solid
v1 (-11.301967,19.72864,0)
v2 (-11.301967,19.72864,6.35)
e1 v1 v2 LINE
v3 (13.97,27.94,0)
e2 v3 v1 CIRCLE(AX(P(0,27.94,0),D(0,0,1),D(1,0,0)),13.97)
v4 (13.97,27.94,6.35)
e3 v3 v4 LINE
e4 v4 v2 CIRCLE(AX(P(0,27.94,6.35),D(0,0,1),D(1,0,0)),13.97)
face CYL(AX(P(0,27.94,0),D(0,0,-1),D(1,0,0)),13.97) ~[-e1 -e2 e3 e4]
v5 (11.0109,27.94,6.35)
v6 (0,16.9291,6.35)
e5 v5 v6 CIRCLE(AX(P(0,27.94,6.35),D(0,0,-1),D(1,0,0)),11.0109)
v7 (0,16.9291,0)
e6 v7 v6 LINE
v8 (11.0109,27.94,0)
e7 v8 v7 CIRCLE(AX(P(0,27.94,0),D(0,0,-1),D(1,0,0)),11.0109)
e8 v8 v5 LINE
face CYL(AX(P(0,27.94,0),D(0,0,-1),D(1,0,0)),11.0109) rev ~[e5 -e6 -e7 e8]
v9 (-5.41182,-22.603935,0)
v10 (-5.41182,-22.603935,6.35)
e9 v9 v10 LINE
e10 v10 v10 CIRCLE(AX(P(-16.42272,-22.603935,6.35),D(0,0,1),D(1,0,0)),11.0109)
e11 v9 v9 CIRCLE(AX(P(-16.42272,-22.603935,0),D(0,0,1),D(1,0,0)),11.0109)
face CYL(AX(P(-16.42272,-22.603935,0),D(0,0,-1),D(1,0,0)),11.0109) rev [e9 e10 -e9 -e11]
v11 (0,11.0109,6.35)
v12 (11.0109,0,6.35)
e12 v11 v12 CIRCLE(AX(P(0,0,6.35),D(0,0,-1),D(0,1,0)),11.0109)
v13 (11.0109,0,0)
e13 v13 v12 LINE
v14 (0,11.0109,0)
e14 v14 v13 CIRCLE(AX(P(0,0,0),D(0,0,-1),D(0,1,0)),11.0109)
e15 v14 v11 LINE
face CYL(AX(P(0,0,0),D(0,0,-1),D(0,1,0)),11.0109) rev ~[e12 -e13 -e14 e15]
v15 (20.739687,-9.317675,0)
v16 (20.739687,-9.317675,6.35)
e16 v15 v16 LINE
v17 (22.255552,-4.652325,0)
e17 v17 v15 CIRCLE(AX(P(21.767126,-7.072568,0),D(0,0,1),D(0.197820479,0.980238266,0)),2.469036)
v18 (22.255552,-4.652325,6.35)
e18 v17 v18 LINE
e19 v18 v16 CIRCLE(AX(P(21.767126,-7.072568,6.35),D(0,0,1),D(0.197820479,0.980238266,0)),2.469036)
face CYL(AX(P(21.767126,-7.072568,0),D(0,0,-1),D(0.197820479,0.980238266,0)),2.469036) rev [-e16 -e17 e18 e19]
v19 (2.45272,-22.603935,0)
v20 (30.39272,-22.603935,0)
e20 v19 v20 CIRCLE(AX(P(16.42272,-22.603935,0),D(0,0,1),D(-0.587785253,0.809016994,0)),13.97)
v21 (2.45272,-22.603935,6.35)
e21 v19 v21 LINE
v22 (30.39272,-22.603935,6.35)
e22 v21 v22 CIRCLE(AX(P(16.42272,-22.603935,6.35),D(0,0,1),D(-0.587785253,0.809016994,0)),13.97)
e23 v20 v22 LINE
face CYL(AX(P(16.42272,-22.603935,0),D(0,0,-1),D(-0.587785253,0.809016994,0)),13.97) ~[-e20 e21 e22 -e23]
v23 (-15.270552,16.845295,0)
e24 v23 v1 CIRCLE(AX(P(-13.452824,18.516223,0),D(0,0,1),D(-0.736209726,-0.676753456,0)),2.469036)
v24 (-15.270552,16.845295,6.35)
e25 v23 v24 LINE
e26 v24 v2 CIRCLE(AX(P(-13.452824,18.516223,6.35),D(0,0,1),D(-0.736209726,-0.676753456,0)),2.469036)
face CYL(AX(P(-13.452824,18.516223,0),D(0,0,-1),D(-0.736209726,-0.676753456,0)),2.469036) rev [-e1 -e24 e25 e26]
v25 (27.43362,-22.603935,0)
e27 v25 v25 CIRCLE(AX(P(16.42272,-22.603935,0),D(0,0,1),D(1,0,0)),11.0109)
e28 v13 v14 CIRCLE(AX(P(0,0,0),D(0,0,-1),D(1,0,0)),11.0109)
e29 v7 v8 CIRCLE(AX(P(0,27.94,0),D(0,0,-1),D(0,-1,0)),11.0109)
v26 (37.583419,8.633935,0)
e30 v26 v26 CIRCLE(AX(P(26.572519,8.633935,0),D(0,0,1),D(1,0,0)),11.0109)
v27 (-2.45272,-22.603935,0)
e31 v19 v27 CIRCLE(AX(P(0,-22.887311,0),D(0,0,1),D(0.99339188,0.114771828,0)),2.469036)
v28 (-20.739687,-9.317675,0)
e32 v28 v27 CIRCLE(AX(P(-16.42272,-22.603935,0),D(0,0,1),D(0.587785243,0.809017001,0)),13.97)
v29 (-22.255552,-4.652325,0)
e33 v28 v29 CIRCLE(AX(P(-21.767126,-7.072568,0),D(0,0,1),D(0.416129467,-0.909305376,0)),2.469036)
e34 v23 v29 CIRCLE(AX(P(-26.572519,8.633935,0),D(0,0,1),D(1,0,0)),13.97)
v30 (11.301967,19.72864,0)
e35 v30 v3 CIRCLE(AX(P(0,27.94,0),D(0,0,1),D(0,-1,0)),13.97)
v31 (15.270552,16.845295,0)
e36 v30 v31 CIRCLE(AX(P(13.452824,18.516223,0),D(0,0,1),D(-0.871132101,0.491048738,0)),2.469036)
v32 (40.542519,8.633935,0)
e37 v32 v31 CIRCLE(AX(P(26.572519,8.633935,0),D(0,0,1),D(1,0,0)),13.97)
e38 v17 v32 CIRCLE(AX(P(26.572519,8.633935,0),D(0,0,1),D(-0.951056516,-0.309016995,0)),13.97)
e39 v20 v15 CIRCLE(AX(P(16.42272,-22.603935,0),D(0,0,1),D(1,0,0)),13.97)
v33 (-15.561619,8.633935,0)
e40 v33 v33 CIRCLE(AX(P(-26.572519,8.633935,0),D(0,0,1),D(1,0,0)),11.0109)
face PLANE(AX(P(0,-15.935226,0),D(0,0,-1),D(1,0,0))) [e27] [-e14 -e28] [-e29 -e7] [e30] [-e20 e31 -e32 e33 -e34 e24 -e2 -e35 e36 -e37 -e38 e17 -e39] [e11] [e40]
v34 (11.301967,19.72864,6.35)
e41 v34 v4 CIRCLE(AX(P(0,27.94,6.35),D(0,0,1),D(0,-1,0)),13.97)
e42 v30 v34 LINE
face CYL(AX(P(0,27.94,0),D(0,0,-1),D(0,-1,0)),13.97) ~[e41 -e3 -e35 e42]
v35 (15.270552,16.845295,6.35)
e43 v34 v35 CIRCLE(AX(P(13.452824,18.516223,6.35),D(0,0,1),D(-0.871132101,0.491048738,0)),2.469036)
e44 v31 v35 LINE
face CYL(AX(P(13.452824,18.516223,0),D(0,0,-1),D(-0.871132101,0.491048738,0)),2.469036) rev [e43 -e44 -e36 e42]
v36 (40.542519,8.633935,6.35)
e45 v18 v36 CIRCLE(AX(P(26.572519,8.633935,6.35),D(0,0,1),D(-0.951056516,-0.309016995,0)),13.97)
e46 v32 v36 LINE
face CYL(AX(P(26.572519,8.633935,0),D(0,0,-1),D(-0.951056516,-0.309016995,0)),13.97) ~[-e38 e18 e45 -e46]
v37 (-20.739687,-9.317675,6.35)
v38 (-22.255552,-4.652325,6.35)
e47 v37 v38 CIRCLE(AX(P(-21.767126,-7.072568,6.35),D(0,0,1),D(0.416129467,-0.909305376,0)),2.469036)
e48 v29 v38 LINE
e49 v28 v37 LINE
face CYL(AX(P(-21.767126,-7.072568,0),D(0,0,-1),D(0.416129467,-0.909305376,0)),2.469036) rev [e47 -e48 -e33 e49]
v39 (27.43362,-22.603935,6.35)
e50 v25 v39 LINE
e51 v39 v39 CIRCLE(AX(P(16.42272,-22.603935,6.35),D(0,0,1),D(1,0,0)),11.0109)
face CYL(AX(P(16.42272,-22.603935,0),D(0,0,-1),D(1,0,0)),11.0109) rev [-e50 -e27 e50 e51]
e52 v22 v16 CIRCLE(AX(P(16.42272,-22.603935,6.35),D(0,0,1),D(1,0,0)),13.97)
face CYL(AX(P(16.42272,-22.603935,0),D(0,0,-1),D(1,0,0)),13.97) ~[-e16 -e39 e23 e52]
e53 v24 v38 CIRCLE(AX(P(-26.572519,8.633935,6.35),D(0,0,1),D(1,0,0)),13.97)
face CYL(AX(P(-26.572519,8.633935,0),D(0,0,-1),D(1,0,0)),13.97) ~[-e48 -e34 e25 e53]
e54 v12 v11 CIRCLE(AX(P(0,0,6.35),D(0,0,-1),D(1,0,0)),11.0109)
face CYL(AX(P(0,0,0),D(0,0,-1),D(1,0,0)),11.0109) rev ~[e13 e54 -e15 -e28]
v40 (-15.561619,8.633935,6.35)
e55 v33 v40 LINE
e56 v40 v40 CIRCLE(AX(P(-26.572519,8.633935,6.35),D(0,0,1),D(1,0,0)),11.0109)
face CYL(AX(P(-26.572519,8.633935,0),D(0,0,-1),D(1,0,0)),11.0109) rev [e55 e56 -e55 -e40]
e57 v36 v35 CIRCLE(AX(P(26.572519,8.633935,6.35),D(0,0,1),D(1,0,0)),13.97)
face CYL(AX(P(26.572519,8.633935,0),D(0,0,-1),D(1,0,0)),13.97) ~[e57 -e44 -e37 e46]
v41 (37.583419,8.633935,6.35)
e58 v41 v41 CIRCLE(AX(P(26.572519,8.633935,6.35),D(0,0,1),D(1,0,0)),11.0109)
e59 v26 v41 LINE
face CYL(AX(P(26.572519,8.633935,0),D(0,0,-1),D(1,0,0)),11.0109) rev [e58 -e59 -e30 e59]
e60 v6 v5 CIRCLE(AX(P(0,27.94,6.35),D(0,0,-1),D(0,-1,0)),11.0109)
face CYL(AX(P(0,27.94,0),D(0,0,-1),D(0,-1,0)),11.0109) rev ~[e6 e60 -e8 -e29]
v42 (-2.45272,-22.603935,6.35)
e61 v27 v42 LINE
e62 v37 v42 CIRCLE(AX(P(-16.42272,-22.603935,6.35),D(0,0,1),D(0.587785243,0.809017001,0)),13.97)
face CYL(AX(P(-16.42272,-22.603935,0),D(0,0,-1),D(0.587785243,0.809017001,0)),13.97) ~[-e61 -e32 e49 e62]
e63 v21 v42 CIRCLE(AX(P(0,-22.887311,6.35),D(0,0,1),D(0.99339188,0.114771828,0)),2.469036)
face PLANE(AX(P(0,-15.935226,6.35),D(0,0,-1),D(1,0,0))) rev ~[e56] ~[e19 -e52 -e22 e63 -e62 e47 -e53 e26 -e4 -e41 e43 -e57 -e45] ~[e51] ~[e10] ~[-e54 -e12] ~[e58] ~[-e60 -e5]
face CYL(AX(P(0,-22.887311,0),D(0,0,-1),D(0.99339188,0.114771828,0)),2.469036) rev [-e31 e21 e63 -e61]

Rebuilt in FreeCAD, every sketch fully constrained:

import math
import FreeCAD as App
import Part
import Sketcher
Q = App.Units.Quantity

doc = App.newDocument("Part")
body = doc.addObject("PartDesign::Body", "Body")

sketch1 = body.newObject("Sketcher::SketchObject", "Sketch")
sketch1.AttachmentSupport = (doc.getObject("XY_Plane"), [""])
sketch1.MapMode = "FlatFace"
sketch1.addGeometry([
    Part.ArcOfCircle(Part.Circle(App.Vector(-26.6, 8.6, 0), App.Vector(0, 0, 1), 14), math.radians(0), math.radians(342)),
    Part.ArcOfCircle(Part.Circle(App.Vector(-26.6, 8.6, 0), App.Vector(0, 0, 1), 14), math.radians(-18), math.radians(0)),
    Part.Circle(App.Vector(-26.6, 8.6, 0), App.Vector(0, 0, 1), 11),
], False)
sketch1.addConstraint([
    Sketcher.Constraint("Tangent", 0, 1, 1, 2),
    Sketcher.Constraint("Coincident", 1, 1, 0, 2),
    Sketcher.Constraint("Coincident", 2, 3, 0, 3),
    Sketcher.Constraint("Horizontal", 2, 3, 0, 1),
    Sketcher.Constraint("Radius", 0, Q("0.55 in")),
    Sketcher.Constraint("Diameter", 2, Q("0.867 in")),
    Sketcher.Constraint("DistanceX", 0, 3, -1, 1, Q("26.572519 mm")),
    Sketcher.Constraint("DistanceX", 1, 1, -1, 1, Q("13.28626 mm")),
    Sketcher.Constraint("DistanceY", -1, 1, 0, 3, Q("8.633935 mm")),
])
pad1 = body.newObject("PartDesign::Pad", "Pad")
pad1.Profile = sketch1
pad1.Length = Q("0.25 in")
body2 = doc.addObject("PartDesign::Body", "Body001")

sketch2 = body2.newObject("Sketcher::SketchObject", "Sketch001")
sketch2.AttachmentSupport = (doc.getObject("XY_Plane001"), [""])
sketch2.MapMode = "FlatFace"
sketch2.addGeometry([
    Part.ArcOfCircle(Part.Circle(App.Vector(0, 28, 0), App.Vector(0, 0, 1), 14), math.radians(0), math.radians(270)),
    Part.ArcOfCircle(Part.Circle(App.Vector(0, 28, 0), App.Vector(0, 0, 1), 14), math.radians(-90), math.radians(0)),
    Part.ArcOfCircle(Part.Circle(App.Vector(0, 28, 0), App.Vector(0, 0, 1), 11), math.radians(0), math.radians(270)),
    Part.ArcOfCircle(Part.Circle(App.Vector(0, 28, 0), App.Vector(0, 0, 1), 11), math.radians(-90), math.radians(0)),
], False)
sketch2.addConstraint([
    Sketcher.Constraint("Tangent", 0, 1, 1, 2),
    Sketcher.Constraint("Coincident", 1, 1, 0, 2),
    Sketcher.Constraint("Tangent", 2, 1, 3, 2),
    Sketcher.Constraint("Coincident", 3, 1, 2, 2),
    Sketcher.Constraint("Coincident", 2, 3, 0, 3),
    Sketcher.Constraint("PointOnObject", 0, 3, -2),
    Sketcher.Constraint("PointOnObject", 1, 1, -2),
    Sketcher.Constraint("PointOnObject", 3, 1, -2),
    Sketcher.Constraint("Horizontal", 3, 3, 0, 1),
    Sketcher.Constraint("Horizontal", 0, 1, 2, 1),
    Sketcher.Constraint("Radius", 0, Q("0.55 in")),
    Sketcher.Constraint("DistanceY", -1, 1, 0, 3, Q("1.1 in")),
    Sketcher.Constraint("Radius", 2, Q("0.4335 in")),
])
pad2 = body2.newObject("PartDesign::Pad", "Pad001")
pad2.Profile = sketch2
pad2.Length = Q("0.25 in")
body3 = doc.addObject("PartDesign::Body", "Body002")

sketch3 = body3.newObject("Sketcher::SketchObject", "Sketch002")
sketch3.AttachmentSupport = (doc.getObject("XY_Plane002"), [""])
sketch3.MapMode = "FlatFace"
sketch3.addGeometry([
    Part.ArcOfCircle(Part.Circle(App.Vector(27, 9, 0), App.Vector(0, 0, 1), 14), math.radians(0), math.radians(198)),
    Part.ArcOfCircle(Part.Circle(App.Vector(27, 9, 0), App.Vector(0, 0, 1), 14), math.radians(-162), math.radians(0)),
    Part.Circle(App.Vector(27, 9, 0), App.Vector(0, 0, 1), 11),
], False)
sketch3.addConstraint([
    Sketcher.Constraint("Tangent", 0, 1, 1, 2),
    Sketcher.Constraint("Coincident", 1, 1, 0, 2),
    Sketcher.Constraint("Coincident", 2, 3, 0, 3),
    Sketcher.Constraint("Horizontal", 2, 3, 0, 1),
    Sketcher.Constraint("Radius", 0, Q("0.55 in")),
    Sketcher.Constraint("Diameter", 2, Q("0.867 in")),
    Sketcher.Constraint("DistanceX", -1, 1, 0, 3, Q("26.572519 mm")),
    Sketcher.Constraint("DistanceX", -1, 1, 1, 1, Q("13.28626 mm")),
    Sketcher.Constraint("DistanceY", -1, 1, 0, 3, Q("8.633935 mm")),
])
pad3 = body3.newObject("PartDesign::Pad", "Pad002")
pad3.Profile = sketch3
pad3.Length = Q("0.25 in")
body4 = doc.addObject("PartDesign::Body", "Body003")

sketch4 = body4.newObject("Sketcher::SketchObject", "Sketch003")
sketch4.AttachmentSupport = (doc.getObject("XY_Plane003"), [""])
sketch4.MapMode = "FlatFace"
sketch4.addGeometry([
    Part.ArcOfCircle(Part.Circle(App.Vector(16, -23, 0), App.Vector(0, 0, 1), 14), math.radians(0), math.radians(126)),
    Part.ArcOfCircle(Part.Circle(App.Vector(16, -23, 0), App.Vector(0, 0, 1), 14), math.radians(126), math.radians(360)),
    Part.Circle(App.Vector(16, -23, 0), App.Vector(0, 0, 1), 11),
], False)
sketch4.addConstraint([
    Sketcher.Constraint("Tangent", 0, 1, 1, 2),
    Sketcher.Constraint("Coincident", 1, 1, 0, 2),
    Sketcher.Constraint("Coincident", 2, 3, 0, 3),
    Sketcher.Constraint("Horizontal", 2, 3, 0, 1),
    Sketcher.Constraint("Radius", 0, Q("0.55 in")),
    Sketcher.Constraint("Diameter", 2, Q("0.867 in")),
    Sketcher.Constraint("DistanceX", -1, 1, 0, 3, Q("16.42272 mm")),
    Sketcher.Constraint("DistanceX", -1, 1, 1, 1, Q("8.21136 mm")),
    Sketcher.Constraint("DistanceY", 0, 3, -1, 1, Q("22.603935 mm")),
])
pad4 = body4.newObject("PartDesign::Pad", "Pad003")
pad4.Profile = sketch4
pad4.Length = Q("0.25 in")
body5 = doc.addObject("PartDesign::Body", "Body004")

sketch5 = body5.newObject("Sketcher::SketchObject", "Sketch004")
sketch5.AttachmentSupport = (doc.getObject("XY_Plane004"), [""])
sketch5.MapMode = "FlatFace"
sketch5.addGeometry([
    Part.ArcOfCircle(Part.Circle(App.Vector(-16, -23, 0), App.Vector(0, 0, 1), 14), math.radians(0), math.radians(54)),
    Part.ArcOfCircle(Part.Circle(App.Vector(-16, -23, 0), App.Vector(0, 0, 1), 14), math.radians(54), math.radians(360)),
    Part.Circle(App.Vector(-16, -23, 0), App.Vector(0, 0, 1), 11),
], False)
sketch5.addConstraint([
    Sketcher.Constraint("Tangent", 0, 1, 1, 2),
    Sketcher.Constraint("Coincident", 1, 1, 0, 2),
    Sketcher.Constraint("Coincident", 2, 3, 0, 3),
    Sketcher.Constraint("Horizontal", 2, 3, 0, 1),
    Sketcher.Constraint("Radius", 0, Q("0.55 in")),
    Sketcher.Constraint("Diameter", 2, Q("0.867 in")),
    Sketcher.Constraint("DistanceX", 0, 3, -1, 1, Q("16.42272 mm")),
    Sketcher.Constraint("DistanceX", 1, 1, -1, 1, Q("8.21136 mm")),
    Sketcher.Constraint("DistanceY", 0, 3, -1, 1, Q("22.603935 mm")),
])
pad5 = body5.newObject("PartDesign::Pad", "Pad004")
pad5.Profile = sketch5
pad5.Length = Q("0.25 in")
body6 = doc.addObject("PartDesign::Body", "Body005")

sketch6 = body6.newObject("Sketcher::SketchObject", "Sketch005")
sketch6.AttachmentSupport = (doc.getObject("XY_Plane005"), [""])
sketch6.MapMode = "FlatFace"
sketch6.addGeometry([
    Part.ArcOfCircle(Part.Circle(App.Vector(0, 0, 0), App.Vector(0, 0, 1), 14), math.radians(18), math.radians(90)),
    Part.ArcOfCircle(Part.Circle(App.Vector(0, 0, 0), App.Vector(0, 0, 1), 14), math.radians(90), math.radians(162)),
    Part.ArcOfCircle(Part.Circle(App.Vector(0, 0, 0), App.Vector(0, 0, 1), 14), math.radians(162), math.radians(234)),
    Part.ArcOfCircle(Part.Circle(App.Vector(0, 0, 0), App.Vector(0, 0, 1), 14), math.radians(-126), math.radians(-54)),
    Part.ArcOfCircle(Part.Circle(App.Vector(0, 0, 0), App.Vector(0, 0, 1), 14), math.radians(-54), math.radians(0)),
    Part.ArcOfCircle(Part.Circle(App.Vector(0, 0, 0), App.Vector(0, 0, 1), 14), math.radians(0), math.radians(18)),
    Part.ArcOfCircle(Part.Circle(App.Vector(0, 0, 0), App.Vector(0, 0, 1), 11), math.radians(90), math.radians(360)),
    Part.ArcOfCircle(Part.Circle(App.Vector(0, 0, 0), App.Vector(0, 0, 1), 11), math.radians(0), math.radians(90)),
], False)
sketch6.addConstraint([
    Sketcher.Constraint("Tangent", 0, 2, 1, 1),
    Sketcher.Constraint("Tangent", 1, 2, 2, 1),
    Sketcher.Constraint("Tangent", 2, 2, 3, 1),
    Sketcher.Constraint("Tangent", 3, 2, 4, 1),
    Sketcher.Constraint("Tangent", 4, 2, 5, 1),
    Sketcher.Constraint("Tangent", 5, 2, 0, 1),
    Sketcher.Constraint("Tangent", 6, 1, 7, 2),
    Sketcher.Constraint("Coincident", 7, 1, 6, 2),
    Sketcher.Constraint("Coincident", 0, 3, -1, 1),
    Sketcher.Constraint("Coincident", 2, 3, -1, 1),
    Sketcher.Constraint("Coincident", 6, 3, -1, 1),
    Sketcher.Constraint("Equal", 2, 3),
    Sketcher.Constraint("PointOnObject", 0, 2, -2),
    Sketcher.Constraint("PointOnObject", 4, 2, -1),
    Sketcher.Constraint("PointOnObject", 6, 1, -2),
    Sketcher.Constraint("PointOnObject", 7, 1, -1),
    Sketcher.Constraint("Horizontal", 2, 2, 3, 2),
    Sketcher.Constraint("Horizontal", 1, 2, 5, 2),
    Sketcher.Constraint("Radius", 0, Q("0.55 in")),
    Sketcher.Constraint("Radius", 6, Q("0.4335 in")),
    Sketcher.Constraint("DistanceX", 1, 2, -1, 1, Q("13.28626 mm")),
    Sketcher.Constraint("DistanceX", 2, 2, -1, 1, Q("8.21136 mm")),
])
pad6 = body6.newObject("PartDesign::Pad", "Pad005")
pad6.Profile = sketch6
pad6.Length = Q("0.25 in")
body.AllowCompound = True
doc.recompute()

boolean = body.newObject("PartDesign::Boolean", "Boolean")
boolean.Type = "Fuse"
boolean.addObjects([body2])
doc.recompute()

boolean2 = body.newObject("PartDesign::Boolean", "Boolean001")
boolean2.Type = "Fuse"
boolean2.addObjects([body3])
doc.recompute()

boolean3 = body.newObject("PartDesign::Boolean", "Boolean002")
boolean3.Type = "Fuse"
boolean3.addObjects([body4])
doc.recompute()

boolean4 = body.newObject("PartDesign::Boolean", "Boolean003")
boolean4.Type = "Fuse"
boolean4.addObjects([body5])
doc.recompute()

boolean5 = body.newObject("PartDesign::Boolean", "Boolean004")
boolean5.Type = "Fuse"
boolean5.addObjects([body6])

sketch7 = body.newObject("Sketcher::SketchObject", "Sketch006")
sketch7.AttachmentSupport = (doc.getObject("XY_Plane"), [""])
sketch7.MapMode = "FlatFace"
sketch7.addGeometry([
    Part.ArcOfCircle(Part.Circle(App.Vector(0, -22.9, 0), App.Vector(0, 0, 1), 2.5), math.radians(7), math.radians(173)),
    Part.ArcOfCircle(Part.Circle(App.Vector(-16.4, -22.6, 0), App.Vector(0, 0, 1), 14), math.radians(0), math.radians(54)),
    Part.ArcOfCircle(Part.Circle(App.Vector(0, 0, 0), App.Vector(0, 0, 1), 14), math.radians(-126), math.radians(-54)),
    Part.ArcOfCircle(Part.Circle(App.Vector(16.4, -22.6, 0), App.Vector(0, 0, 1), 14), math.radians(126), math.radians(180)),
    Part.ArcOfCircle(Part.Circle(App.Vector(-16.4, -22.6, 0), App.Vector(0, 0, 1), 14), math.radians(54), math.radians(108)),
    Part.ArcOfCircle(Part.Circle(App.Vector(-21.8, -7.1, 0), App.Vector(0, 0, 1), 2.5), math.radians(-65), math.radians(101)),
    Part.ArcOfCircle(Part.Circle(App.Vector(-26.6, 8.6, 0), App.Vector(0, 0, 1), 14), math.radians(-72), math.radians(-18)),
    Part.ArcOfCircle(Part.Circle(App.Vector(0, 0, 0), App.Vector(0, 0, 1), 14), math.radians(162), math.radians(234)),
    Part.ArcOfCircle(Part.Circle(App.Vector(0, 0, 0), App.Vector(0, 0, 1), 14), math.radians(90), math.radians(162)),
    Part.ArcOfCircle(Part.Circle(App.Vector(-26.6, 8.6, 0), App.Vector(0, 0, 1), 14), math.radians(-18), math.radians(0)),
    Part.ArcOfCircle(Part.Circle(App.Vector(-26.6, 8.6, 0), App.Vector(0, 0, 1), 14), math.radians(0), math.radians(36)),
    Part.ArcOfCircle(Part.Circle(App.Vector(-13.5, 18.5, 0), App.Vector(0, 0, 1), 2.5), math.radians(-137), math.radians(29)),
    Part.ArcOfCircle(Part.Circle(App.Vector(0, 27.9, 0), App.Vector(0, 0, 1), 14), math.radians(-144), math.radians(-90)),
    Part.ArcOfCircle(Part.Circle(App.Vector(0, 0, 0), App.Vector(0, 0, 1), 14), math.radians(18), math.radians(90)),
    Part.ArcOfCircle(Part.Circle(App.Vector(0, 27.9, 0), App.Vector(0, 0, 1), 14), math.radians(-90), math.radians(-36)),
    Part.ArcOfCircle(Part.Circle(App.Vector(13.5, 18.5, 0), App.Vector(0, 0, 1), 2.5), math.radians(151), math.radians(317)),
    Part.ArcOfCircle(Part.Circle(App.Vector(26.6, 8.6, 0), App.Vector(0, 0, 1), 14), math.radians(144), math.radians(198)),
    Part.ArcOfCircle(Part.Circle(App.Vector(16.4, -22.6, 0), App.Vector(0, 0, 1), 14), math.radians(72), math.radians(126)),
    Part.ArcOfCircle(Part.Circle(App.Vector(0, 0, 0), App.Vector(0, 0, 1), 14), math.radians(-54), math.radians(0)),
    Part.ArcOfCircle(Part.Circle(App.Vector(0, 0, 0), App.Vector(0, 0, 1), 14), math.radians(0), math.radians(18)),
    Part.ArcOfCircle(Part.Circle(App.Vector(26.6, 8.6, 0), App.Vector(0, 0, 1), 14), math.radians(-162), math.radians(-108)),
    Part.ArcOfCircle(Part.Circle(App.Vector(21.8, -7.1, 0), App.Vector(0, 0, 1), 2.5), math.radians(79), math.radians(245)),
], False)
sketch7.addConstraint([
    Sketcher.Constraint("Coincident", 0, 2, 1, 1),
    Sketcher.Constraint("Tangent", 1, 2, 2, 1),
    Sketcher.Constraint("Tangent", 2, 2, 3, 1),
    Sketcher.Constraint("Coincident", 3, 2, 0, 1),
    Sketcher.Constraint("Coincident", 4, 2, 5, 1),
    Sketcher.Constraint("Coincident", 5, 2, 6, 1),
    Sketcher.Constraint("Tangent", 6, 2, 7, 1),
    Sketcher.Constraint("Tangent", 7, 2, 4, 1),
    Sketcher.Constraint("Tangent", 8, 2, 9, 1),
    Sketcher.Constraint("Tangent", 9, 2, 10, 1),
    Sketcher.Constraint("Coincident", 10, 2, 11, 1),
    Sketcher.Constraint("Coincident", 11, 2, 12, 1),
    Sketcher.Constraint("Tangent", 12, 2, 8, 1),
    Sketcher.Constraint("Tangent", 13, 2, 14, 1),
    Sketcher.Constraint("Coincident", 14, 2, 15, 1),
    Sketcher.Constraint("Coincident", 15, 2, 16, 1),
    Sketcher.Constraint("Tangent", 16, 2, 13, 1),
    Sketcher.Constraint("Tangent", 17, 2, 18, 1),
    Sketcher.Constraint("Tangent", 18, 2, 19, 1),
    Sketcher.Constraint("Tangent", 19, 2, 20, 1),
    Sketcher.Constraint("Coincident", 20, 2, 21, 1),
    Sketcher.Constraint("Coincident", 21, 2, 17, 1),
    Sketcher.Constraint("Coincident", 2, 3, -1, 1),
    Sketcher.Constraint("Coincident", 7, 3, -1, 1),
    Sketcher.Constraint("Coincident", 8, 3, -1, 1),
    Sketcher.Constraint("Coincident", 13, 3, -1, 1),
    Sketcher.Constraint("Coincident", 18, 3, -1, 1),
    Sketcher.Constraint("Coincident", 4, 3, 1, 3),
    Sketcher.Constraint("Coincident", 9, 3, 6, 3),
    Sketcher.Constraint("Coincident", 14, 3, 12, 3),
    Sketcher.Constraint("Coincident", 17, 3, 3, 3),
    Sketcher.Constraint("Coincident", 20, 3, 16, 3),
    Sketcher.Constraint("Coincident", 19, 2, 16, 2),
    Sketcher.Constraint("Equal", 1, 2),
    Sketcher.Constraint("Equal", 2, 3),
    Sketcher.Constraint("Equal", 3, 4),
    Sketcher.Constraint("Equal", 0, 5),
    Sketcher.Constraint("Equal", 4, 6),
    Sketcher.Constraint("Equal", 7, 8),
    Sketcher.Constraint("Equal", 9, 10),
    Sketcher.Constraint("Equal", 5, 11),
    Sketcher.Constraint("Equal", 10, 12),
    Sketcher.Constraint("Equal", 12, 13),
    Sketcher.Constraint("Equal", 11, 15),
    Sketcher.Constraint("Equal", 14, 16),
    Sketcher.Constraint("Equal", 15, 21),
    Sketcher.Constraint("Symmetric", 11, 3, 15, 3, -2),
    Sketcher.Constraint("Symmetric", 5, 3, 21, 3, -2),
    Sketcher.Constraint("Symmetric", 0, 2, 3, 2, -2),
    Sketcher.Constraint("PointOnObject", 12, 3, -2),
    Sketcher.Constraint("PointOnObject", 18, 2, -1),
    Sketcher.Constraint("Horizontal", 10, 3, 16, 3),
    Sketcher.Constraint("Horizontal", 17, 3, 0, 2),
    Sketcher.Constraint("Horizontal", 20, 3, 9, 2),
    Sketcher.Constraint("Radius", 1, Q("0.55 in")),
    Sketcher.Constraint("Radius", 0, Q("2.469036 mm")),
    Sketcher.Constraint("DistanceX", 6, 3, 1, 3, Q("10.149799 mm")),
    Sketcher.Constraint("DistanceY", 0, 3, -1, 1, Q("22.887311 mm")),
    Sketcher.Constraint("DistanceX", 5, 2, -1, 1, Q("22.255552 mm")),
    Sketcher.Constraint("DistanceX", 10, 2, -1, 1, Q("15.270552 mm")),
    Sketcher.Constraint("DistanceY", -1, 1, 11, 2, Q("19.72864 mm")),
    Sketcher.Constraint("DistanceX", 5, 3, 4, 2, Q("1.027438 mm")),
])
pad7 = body.newObject("PartDesign::Pad", "Pad006")
pad7.Profile = sketch7
pad7.Length = Q("0.25 in")

doc.recompute()
